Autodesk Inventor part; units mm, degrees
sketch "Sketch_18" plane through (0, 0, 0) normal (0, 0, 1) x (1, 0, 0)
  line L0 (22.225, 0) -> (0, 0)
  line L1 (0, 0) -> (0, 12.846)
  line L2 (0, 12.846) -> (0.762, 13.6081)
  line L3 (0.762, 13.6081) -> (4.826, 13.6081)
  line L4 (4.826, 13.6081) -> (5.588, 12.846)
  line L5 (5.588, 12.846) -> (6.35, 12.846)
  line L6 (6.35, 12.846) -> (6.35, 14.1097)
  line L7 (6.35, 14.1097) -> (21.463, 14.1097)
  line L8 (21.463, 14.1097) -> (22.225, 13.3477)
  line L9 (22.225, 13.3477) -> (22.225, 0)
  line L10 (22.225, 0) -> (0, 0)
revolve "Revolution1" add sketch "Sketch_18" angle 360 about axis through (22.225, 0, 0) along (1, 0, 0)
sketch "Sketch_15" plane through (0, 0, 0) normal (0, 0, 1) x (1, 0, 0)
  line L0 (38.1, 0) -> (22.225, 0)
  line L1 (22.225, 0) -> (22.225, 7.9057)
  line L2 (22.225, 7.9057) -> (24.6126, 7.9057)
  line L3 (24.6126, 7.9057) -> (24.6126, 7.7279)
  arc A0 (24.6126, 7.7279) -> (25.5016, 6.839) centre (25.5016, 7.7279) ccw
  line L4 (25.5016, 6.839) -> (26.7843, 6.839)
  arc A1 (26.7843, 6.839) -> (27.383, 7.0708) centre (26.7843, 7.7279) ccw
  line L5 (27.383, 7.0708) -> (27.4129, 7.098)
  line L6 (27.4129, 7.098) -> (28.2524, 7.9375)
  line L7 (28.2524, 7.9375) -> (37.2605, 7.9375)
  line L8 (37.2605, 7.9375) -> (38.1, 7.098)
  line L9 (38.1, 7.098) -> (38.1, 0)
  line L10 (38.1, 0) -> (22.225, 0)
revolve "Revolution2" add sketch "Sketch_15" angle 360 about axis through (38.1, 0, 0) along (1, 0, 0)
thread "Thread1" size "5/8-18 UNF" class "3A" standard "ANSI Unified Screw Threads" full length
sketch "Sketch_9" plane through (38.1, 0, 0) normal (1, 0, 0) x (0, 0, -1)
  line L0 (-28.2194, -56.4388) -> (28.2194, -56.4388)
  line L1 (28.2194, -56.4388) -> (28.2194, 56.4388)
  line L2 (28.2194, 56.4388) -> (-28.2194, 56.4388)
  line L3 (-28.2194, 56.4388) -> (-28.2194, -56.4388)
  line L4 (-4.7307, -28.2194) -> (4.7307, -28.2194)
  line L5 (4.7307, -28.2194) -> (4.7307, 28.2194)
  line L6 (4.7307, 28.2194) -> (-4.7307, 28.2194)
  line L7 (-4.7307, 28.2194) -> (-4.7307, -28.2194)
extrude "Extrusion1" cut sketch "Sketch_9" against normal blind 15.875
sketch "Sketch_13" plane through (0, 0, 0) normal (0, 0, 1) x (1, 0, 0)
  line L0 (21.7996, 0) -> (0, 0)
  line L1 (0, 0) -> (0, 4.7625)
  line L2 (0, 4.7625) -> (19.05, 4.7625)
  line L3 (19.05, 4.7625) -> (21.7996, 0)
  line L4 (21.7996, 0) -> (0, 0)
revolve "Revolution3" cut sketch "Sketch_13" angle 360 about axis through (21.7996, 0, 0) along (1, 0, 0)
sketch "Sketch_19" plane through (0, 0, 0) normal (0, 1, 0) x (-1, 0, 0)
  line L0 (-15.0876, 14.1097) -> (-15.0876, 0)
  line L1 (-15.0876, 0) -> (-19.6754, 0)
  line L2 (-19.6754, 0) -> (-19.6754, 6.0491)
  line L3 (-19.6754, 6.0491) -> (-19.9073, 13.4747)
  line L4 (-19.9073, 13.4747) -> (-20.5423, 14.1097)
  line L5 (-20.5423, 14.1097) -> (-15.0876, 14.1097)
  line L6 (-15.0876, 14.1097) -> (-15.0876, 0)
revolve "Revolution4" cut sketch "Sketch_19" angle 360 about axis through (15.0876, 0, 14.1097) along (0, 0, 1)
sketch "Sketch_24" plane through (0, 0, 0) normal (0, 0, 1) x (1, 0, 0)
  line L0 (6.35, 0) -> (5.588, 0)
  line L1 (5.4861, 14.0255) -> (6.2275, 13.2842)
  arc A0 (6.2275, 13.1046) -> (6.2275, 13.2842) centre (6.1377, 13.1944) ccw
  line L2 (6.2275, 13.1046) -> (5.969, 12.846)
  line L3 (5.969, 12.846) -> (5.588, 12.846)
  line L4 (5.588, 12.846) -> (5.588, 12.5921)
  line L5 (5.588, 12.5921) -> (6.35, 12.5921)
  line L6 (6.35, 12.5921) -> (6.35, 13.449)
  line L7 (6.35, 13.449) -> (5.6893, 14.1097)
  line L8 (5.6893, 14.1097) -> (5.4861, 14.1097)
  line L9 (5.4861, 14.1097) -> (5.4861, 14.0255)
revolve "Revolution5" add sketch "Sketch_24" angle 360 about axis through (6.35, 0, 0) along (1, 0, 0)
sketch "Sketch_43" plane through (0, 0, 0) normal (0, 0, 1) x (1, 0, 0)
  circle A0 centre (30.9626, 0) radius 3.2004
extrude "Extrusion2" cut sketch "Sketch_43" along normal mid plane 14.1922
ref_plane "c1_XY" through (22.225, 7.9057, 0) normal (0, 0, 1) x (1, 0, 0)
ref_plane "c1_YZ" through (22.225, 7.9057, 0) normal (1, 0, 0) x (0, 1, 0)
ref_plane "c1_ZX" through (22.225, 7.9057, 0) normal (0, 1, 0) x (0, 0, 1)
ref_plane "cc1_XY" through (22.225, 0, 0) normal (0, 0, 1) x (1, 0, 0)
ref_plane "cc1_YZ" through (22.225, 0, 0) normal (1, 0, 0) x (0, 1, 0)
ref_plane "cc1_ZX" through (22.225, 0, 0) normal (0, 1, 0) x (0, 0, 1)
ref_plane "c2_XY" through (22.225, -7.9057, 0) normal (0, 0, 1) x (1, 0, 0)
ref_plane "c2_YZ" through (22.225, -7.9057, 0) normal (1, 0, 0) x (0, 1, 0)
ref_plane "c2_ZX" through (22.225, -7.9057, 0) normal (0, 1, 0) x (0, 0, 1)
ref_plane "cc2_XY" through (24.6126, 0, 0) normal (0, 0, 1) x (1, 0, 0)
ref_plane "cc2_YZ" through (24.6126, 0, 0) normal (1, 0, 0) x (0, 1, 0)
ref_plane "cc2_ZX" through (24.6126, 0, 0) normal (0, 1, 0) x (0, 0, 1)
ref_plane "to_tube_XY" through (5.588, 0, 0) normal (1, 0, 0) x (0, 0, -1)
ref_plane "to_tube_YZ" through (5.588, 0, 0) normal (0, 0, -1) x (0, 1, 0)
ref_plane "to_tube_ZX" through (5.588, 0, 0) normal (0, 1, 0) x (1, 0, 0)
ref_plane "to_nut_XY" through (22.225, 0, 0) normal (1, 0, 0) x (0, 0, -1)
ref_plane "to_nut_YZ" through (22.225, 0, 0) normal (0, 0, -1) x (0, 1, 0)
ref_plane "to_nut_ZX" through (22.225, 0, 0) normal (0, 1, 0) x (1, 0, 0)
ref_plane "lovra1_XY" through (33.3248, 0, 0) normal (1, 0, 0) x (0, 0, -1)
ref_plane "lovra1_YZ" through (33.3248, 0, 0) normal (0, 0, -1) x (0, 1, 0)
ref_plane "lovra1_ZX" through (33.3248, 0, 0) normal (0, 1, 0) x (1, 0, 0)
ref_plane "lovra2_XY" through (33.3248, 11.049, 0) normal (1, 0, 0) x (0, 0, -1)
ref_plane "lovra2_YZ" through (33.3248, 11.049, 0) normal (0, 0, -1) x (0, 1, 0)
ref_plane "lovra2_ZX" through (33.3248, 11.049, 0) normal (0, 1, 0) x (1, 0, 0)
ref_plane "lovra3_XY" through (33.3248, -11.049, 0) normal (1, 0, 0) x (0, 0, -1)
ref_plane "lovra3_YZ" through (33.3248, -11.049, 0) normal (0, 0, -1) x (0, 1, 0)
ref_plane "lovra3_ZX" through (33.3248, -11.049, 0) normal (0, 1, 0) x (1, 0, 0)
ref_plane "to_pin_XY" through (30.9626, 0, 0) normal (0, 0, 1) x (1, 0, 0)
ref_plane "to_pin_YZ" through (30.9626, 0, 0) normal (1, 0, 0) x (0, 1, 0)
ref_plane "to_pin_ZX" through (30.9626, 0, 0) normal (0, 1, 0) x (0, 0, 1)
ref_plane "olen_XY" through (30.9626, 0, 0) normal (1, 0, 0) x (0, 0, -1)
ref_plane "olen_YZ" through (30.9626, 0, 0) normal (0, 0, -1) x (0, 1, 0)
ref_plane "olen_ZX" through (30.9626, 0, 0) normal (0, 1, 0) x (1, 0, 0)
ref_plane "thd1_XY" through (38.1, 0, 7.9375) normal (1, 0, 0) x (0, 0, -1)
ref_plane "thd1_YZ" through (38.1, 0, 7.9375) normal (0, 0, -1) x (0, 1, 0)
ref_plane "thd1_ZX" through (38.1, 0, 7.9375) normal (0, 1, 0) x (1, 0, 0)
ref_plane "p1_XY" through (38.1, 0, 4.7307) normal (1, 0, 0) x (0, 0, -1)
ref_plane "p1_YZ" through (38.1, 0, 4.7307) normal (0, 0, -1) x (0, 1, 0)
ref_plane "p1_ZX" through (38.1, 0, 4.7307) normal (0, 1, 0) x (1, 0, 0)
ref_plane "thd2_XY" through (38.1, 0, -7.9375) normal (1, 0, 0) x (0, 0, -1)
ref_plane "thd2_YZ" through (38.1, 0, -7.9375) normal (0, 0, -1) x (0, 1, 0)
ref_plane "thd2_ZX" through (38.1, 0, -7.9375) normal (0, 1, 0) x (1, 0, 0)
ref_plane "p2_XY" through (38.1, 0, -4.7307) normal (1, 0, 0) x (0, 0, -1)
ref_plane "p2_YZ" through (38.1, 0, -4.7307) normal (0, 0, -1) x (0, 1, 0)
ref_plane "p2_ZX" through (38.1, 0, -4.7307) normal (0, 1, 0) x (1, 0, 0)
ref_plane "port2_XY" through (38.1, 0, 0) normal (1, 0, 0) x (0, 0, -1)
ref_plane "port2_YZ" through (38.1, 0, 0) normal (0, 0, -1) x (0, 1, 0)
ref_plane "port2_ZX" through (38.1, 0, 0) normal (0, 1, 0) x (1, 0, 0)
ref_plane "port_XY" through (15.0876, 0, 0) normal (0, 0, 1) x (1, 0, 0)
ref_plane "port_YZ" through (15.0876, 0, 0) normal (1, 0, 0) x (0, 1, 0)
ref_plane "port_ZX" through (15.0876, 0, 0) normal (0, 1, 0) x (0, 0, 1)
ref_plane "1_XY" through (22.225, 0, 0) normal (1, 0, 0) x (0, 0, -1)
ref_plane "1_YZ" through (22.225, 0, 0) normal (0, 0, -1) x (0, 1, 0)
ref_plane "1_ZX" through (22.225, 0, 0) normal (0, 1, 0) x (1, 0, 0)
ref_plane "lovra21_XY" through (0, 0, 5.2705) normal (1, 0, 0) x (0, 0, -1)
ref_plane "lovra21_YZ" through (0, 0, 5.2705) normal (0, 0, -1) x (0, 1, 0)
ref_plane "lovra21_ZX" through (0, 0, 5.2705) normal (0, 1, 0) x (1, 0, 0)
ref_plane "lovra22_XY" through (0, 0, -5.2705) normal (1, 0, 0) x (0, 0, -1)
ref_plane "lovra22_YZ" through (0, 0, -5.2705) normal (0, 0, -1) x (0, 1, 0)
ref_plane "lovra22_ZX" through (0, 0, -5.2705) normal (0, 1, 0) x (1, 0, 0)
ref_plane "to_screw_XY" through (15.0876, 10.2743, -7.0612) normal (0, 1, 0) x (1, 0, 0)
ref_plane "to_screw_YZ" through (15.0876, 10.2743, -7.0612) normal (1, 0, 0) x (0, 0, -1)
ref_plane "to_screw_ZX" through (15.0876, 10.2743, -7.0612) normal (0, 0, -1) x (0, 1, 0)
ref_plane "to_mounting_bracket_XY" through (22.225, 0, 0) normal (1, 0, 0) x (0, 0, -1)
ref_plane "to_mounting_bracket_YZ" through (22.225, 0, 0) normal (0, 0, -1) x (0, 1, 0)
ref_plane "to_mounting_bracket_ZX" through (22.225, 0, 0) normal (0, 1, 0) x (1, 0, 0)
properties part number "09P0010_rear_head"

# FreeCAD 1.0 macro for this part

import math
import FreeCAD as App
import Part
import Sketcher

V = App.Vector
Q = App.Units.Quantity


def add_polygon(sketch, points):
    """Adds a closed chain of lines whose ends are joined by coincident constraints."""
    first, n = sketch.GeometryCount, len(points)
    for a, b in zip(points, points[1:] + points[:1]):
        sketch.addGeometry(Part.LineSegment(App.Vector(*a, 0), App.Vector(*b, 0)), False)
    for i in range(n):
        sketch.addConstraint(Sketcher.Constraint("Coincident", first + i, 2, first + (i + 1) % n, 1))

doc = App.newDocument("Part")
body = doc.addObject("PartDesign::Body", "Body")

sketch1 = body.newObject("Sketcher::SketchObject", "Sketch")
sketch1.AttachmentSupport = (doc.getObject("XY_Plane"), [""])
sketch1.MapMode = "FlatFace"
add_polygon(sketch1, [(0, 0), (22.225, 0), (22.225, 13.3477), (21.463, 14.1097), (6.35, 14.1097), (6.35, 12.846), (5.588, 12.846), (4.826, 13.6081), (0.762, 13.6081), (0, 12.846)])
sketch1.addConstraint([
    Sketcher.Constraint("Horizontal", 0),
    Sketcher.Constraint("Vertical", 1),
    Sketcher.Constraint("Horizontal", 3),
    Sketcher.Constraint("Vertical", 4),
    Sketcher.Constraint("Horizontal", 5),
    Sketcher.Constraint("Horizontal", 7),
    Sketcher.Constraint("Vertical", 9),
    Sketcher.Constraint("Coincident", 9, 2, -1, 1),
    Sketcher.Constraint("Parallel", 2, 6),
    Sketcher.Constraint("Perpendicular", 6, 8),
    Sketcher.Constraint("Horizontal", 5, 2, 8, 2),
    Sketcher.Constraint("Equal", 2, 6),
    Sketcher.Constraint("Equal", 6, 8),
    Sketcher.Constraint("DistanceX", 5, 2, 5, 1, Q("0.03 in")),
    Sketcher.Constraint("DistanceX", 7, 2, 7, 1, Q("0.16 in")),
    Sketcher.Constraint("DistanceX", 0, 1, 0, 2, Q("0.875 in")),
    Sketcher.Constraint("DistanceX", 3, 2, 3, 1, Q("0.595 in")),
    Sketcher.Constraint("DistanceY", 1, 1, 1, 2, Q("0.5255 in")),
    Sketcher.Constraint("DistanceY", 4, 2, 4, 1, 1.2637),
])
revolution = body.newObject("PartDesign::Revolution", "Revolution")
revolution.Profile = sketch1
revolution.ReferenceAxis = (sketch1, ["H_Axis"])
revolution.Angle = 360

sketch2 = body.newObject("Sketcher::SketchObject", "Sketch001")
sketch2.AttachmentSupport = (doc.getObject("XY_Plane"), [""])
sketch2.MapMode = "FlatFace"
sketch2.addGeometry([
    Part.LineSegment(V(22.225, 0, 0), V(38.1, 0, 0)),
    Part.LineSegment(V(38.1, 0, 0), V(38.1, 7.098, 0)),
    Part.LineSegment(V(38.1, 7.098, 0), V(37.2605, 7.9375, 0)),
    Part.LineSegment(V(37.2605, 7.9375, 0), V(28.2524, 7.9375, 0)),
    Part.LineSegment(V(28.2524, 7.9375, 0), V(27.4129, 7.098, 0)),
    Part.LineSegment(V(27.4129, 7.098, 0), V(27.383, 7.0708, 0)),
    Part.ArcOfCircle(Part.Circle(V(26.7843, 7.7279, 0), V(0, 0, 1), 0.8889), math.radians(-90), math.radians(-47.662577)),
    Part.LineSegment(V(26.7843, 6.839, 0), V(25.5016, 6.839, 0)),
    Part.ArcOfCircle(Part.Circle(V(25.5016, 7.7279, 0), V(0, 0, 1), 0.889), math.radians(180), math.radians(270)),
    Part.LineSegment(V(24.6126, 7.7279, 0), V(24.6126, 7.9057, 0)),
    Part.LineSegment(V(24.6126, 7.9057, 0), V(22.225, 7.9057, 0)),
    Part.LineSegment(V(22.225, 7.9057, 0), V(22.225, 0, 0)),
], False)
sketch2.addConstraint([
    Sketcher.Constraint("Coincident", 0, 2, 1, 1),
    Sketcher.Constraint("Coincident", 1, 2, 2, 1),
    Sketcher.Constraint("Coincident", 2, 2, 3, 1),
    Sketcher.Constraint("Coincident", 3, 2, 4, 1),
    Sketcher.Constraint("Coincident", 4, 2, 5, 1),
    Sketcher.Constraint("Coincident", 5, 2, 6, 2),
    Sketcher.Constraint("Tangent", 6, 1, 7, 1),
    Sketcher.Constraint("Tangent", 7, 2, 8, 2),
    Sketcher.Constraint("Tangent", 8, 1, 9, 1),
    Sketcher.Constraint("Coincident", 9, 2, 10, 1),
    Sketcher.Constraint("Coincident", 10, 2, 11, 1),
    Sketcher.Constraint("Coincident", 11, 2, 0, 1),
    Sketcher.Constraint("Horizontal", 0),
    Sketcher.Constraint("Vertical", 1),
    Sketcher.Constraint("Horizontal", 3),
    Sketcher.Constraint("Horizontal", 7),
    Sketcher.Constraint("Vertical", 9),
    Sketcher.Constraint("Horizontal", 10),
    Sketcher.Constraint("Vertical", 11),
    Sketcher.Constraint("Equal", 6, 8),
    Sketcher.Constraint("PointOnObject", 0, 2, -1),
    Sketcher.Constraint("Perpendicular", 2, 4),
    Sketcher.Constraint("Horizontal", 1, 2, 4, 2),
    Sketcher.Constraint("Equal", 2, 4),
    Sketcher.Constraint("Radius", 6, Q("0.035 in")),
    Sketcher.Constraint("DistanceX", -1, 1, 0, 2, Q("1.5 in")),
    Sketcher.Constraint("DistanceX", 0, 1, 0, 2, Q("0.625 in")),
    Sketcher.Constraint("DistanceX", 10, 2, 10, 1, Q("0.094 in")),
    Sketcher.Constraint("DistanceY", 9, 1, 9, 2, Q("0.007 in")),
    Sketcher.Constraint("DistanceX", 7, 2, 7, 1, Q("0.0505 in")),
    Sketcher.Constraint("DistanceY", -1, 1, 2, 2, Q("0.3125 in")),
    Sketcher.Constraint("Distance", 5, Q("0.0016 in")),
    Sketcher.Constraint("DistanceX", 3, 2, 3, 1, 9.008),
    Sketcher.Constraint("DistanceY", 1, 1, 1, 2, 7.098),
    Sketcher.Constraint("DistanceY", 11, 2, 11, 1, 7.9057),
])
revolution2 = body.newObject("PartDesign::Revolution", "Revolution001")
revolution2.Profile = sketch2
revolution2.ReferenceAxis = (sketch2, ["H_Axis"])
revolution2.Angle = 360

sketch3 = body.newObject("Sketcher::SketchObject", "Sketch002")
sketch3.AttachmentSupport = (doc.getObject("YZ_Plane"), [""])
sketch3.MapMode = "FlatFace"
sketch3.AttachmentOffset = App.Placement(V(0, 0, 1.5 * 25.4), App.Rotation())
add_polygon(sketch3, [(56.4388, 28.2194), (-56.4388, 28.2194), (-56.4388, -28.2194), (56.4388, -28.2194)])
add_polygon(sketch3, [(-28.2194, -4.7307), (-28.2194, 4.7307), (28.2194, 4.7307), (28.2194, -4.7307)])
sketch3.addConstraint([
    Sketcher.Constraint("Horizontal", 0),
    Sketcher.Constraint("Vertical", 1),
    Sketcher.Constraint("Horizontal", 2),
    Sketcher.Constraint("Vertical", 3),
    Sketcher.Constraint("Vertical", 4),
    Sketcher.Constraint("Horizontal", 5),
    Sketcher.Constraint("Vertical", 6),
    Sketcher.Constraint("Horizontal", 7),
    Sketcher.Constraint("Symmetric", 0, 2, 2, 2, -1, 1),
    Sketcher.Constraint("Symmetric", 4, 2, 6, 2, -1, 1),
    Sketcher.Constraint("Equal", 7, 1),
    Sketcher.Constraint("DistanceX", 0, 2, 0, 1, Q("4.444 in")),
    Sketcher.Constraint("DistanceX", 5, 1, 5, 2, Q("2.222 in")),
    Sketcher.Constraint("DistanceY", 4, 1, 4, 2, Q("0.3725 in")),
])
pocket1 = body.newObject("PartDesign::Pocket", "Pocket")
pocket1.Profile = sketch3
pocket1.Length = Q("0.625 in")

sketch4 = body.newObject("Sketcher::SketchObject", "Sketch003")
sketch4.AttachmentSupport = (doc.getObject("XY_Plane"), [""])
sketch4.MapMode = "FlatFace"
add_polygon(sketch4, [(0, 0), (21.7996, 0), (19.05, 4.7625), (0, 4.7625)])
sketch4.addConstraint([
    Sketcher.Constraint("Horizontal", 0),
    Sketcher.Constraint("Horizontal", 2),
    Sketcher.Constraint("Vertical", 3),
    Sketcher.Constraint("Coincident", 3, 2, -1, 1),
    Sketcher.Constraint("Angle", 1, Q("119.9997 deg")),
    Sketcher.Constraint("DistanceX", 2, 2, 2, 1, Q("0.75 in")),
    Sketcher.Constraint("DistanceY", 3, 2, 3, 1, Q("0.1875 in")),
])
groove = body.newObject("PartDesign::Groove", "Groove")
groove.Profile = sketch4
groove.ReferenceAxis = (sketch4, ["H_Axis"])
groove.Angle = 360

sketch5 = body.newObject("Sketcher::SketchObject", "Sketch004")
sketch5.AttachmentSupport = (doc.getObject("XZ_Plane"), [""])
sketch5.MapMode = "FlatFace"
add_polygon(sketch5, [(15.0876, 0), (15.0876, 14.1097), (20.5423, 14.1097), (19.9073, 13.4747), (19.6754, 6.0491), (19.6754, 0)])
sketch5.addGeometry(Part.LineSegment(V(15.0876, 0, 0), V(15.0876, 14.1097, 0)), True)
sketch5.addConstraint([
    Sketcher.Constraint("Vertical", 0),
    Sketcher.Constraint("Horizontal", 1),
    Sketcher.Constraint("Vertical", 4),
    Sketcher.Constraint("Horizontal", 5),
    Sketcher.Constraint("Vertical", 6),
    Sketcher.Constraint("Coincident", 6, 1, 5, 2),
    Sketcher.Constraint("PointOnObject", 4, 2, -1),
    Sketcher.Constraint("Horizontal", 1, 2, 6, 2),
    Sketcher.Constraint("Angle", 2, Q("-135 deg")),
    Sketcher.Constraint("DistanceY", 0, 1, 0, 2, Q("0.5555 in")),
    Sketcher.Constraint("DistanceX", -1, 1, 0, 2, Q("0.594 in")),
    Sketcher.Constraint("DistanceX", 2, 2, 1, 2, Q("0.025 in")),
    Sketcher.Constraint("Distance", 3, Q("0.2925 in")),
    Sketcher.Constraint("DistanceX", 1, 1, 1, 2, 5.4547),
    Sketcher.Constraint("DistanceX", 5, 2, 5, 1, 4.5878),
])
groove2 = body.newObject("PartDesign::Groove", "Groove001")
groove2.Profile = sketch5
groove2.ReferenceAxis = (sketch5, ["Axis0"])
groove2.Angle = 360

sketch6 = body.newObject("Sketcher::SketchObject", "Sketch005")
sketch6.AttachmentSupport = (doc.getObject("XY_Plane"), [""])
sketch6.MapMode = "FlatFace"
sketch6.addGeometry([
    Part.LineSegment(V(5.4861, 14.1097, 0), V(5.4861, 14.0255, 0)),
    Part.LineSegment(V(5.4861, 14.0255, 0), V(6.2275, 13.2842, 0)),
    Part.ArcOfCircle(Part.Circle(V(6.1377, 13.1944, 0), V(0, 0, 1), 0.126996), math.radians(-45), math.radians(45)),
    Part.LineSegment(V(6.2275, 13.1046, 0), V(5.969, 12.846, 0)),
    Part.LineSegment(V(5.969, 12.846, 0), V(5.588, 12.846, 0)),
    Part.LineSegment(V(5.588, 12.846, 0), V(5.588, 12.5921, 0)),
    Part.LineSegment(V(5.588, 12.5921, 0), V(6.35, 12.5921, 0)),
    Part.LineSegment(V(6.35, 12.5921, 0), V(6.35, 13.449, 0)),
    Part.LineSegment(V(6.35, 13.449, 0), V(5.6893, 14.1097, 0)),
    Part.LineSegment(V(5.6893, 14.1097, 0), V(5.4861, 14.1097, 0)),
], False)
sketch6.addConstraint([
    Sketcher.Constraint("Coincident", 0, 2, 1, 1),
    Sketcher.Constraint("Tangent", 1, 2, 2, 2),
    Sketcher.Constraint("Tangent", 2, 1, 3, 1),
    Sketcher.Constraint("Coincident", 3, 2, 4, 1),
    Sketcher.Constraint("Coincident", 4, 2, 5, 1),
    Sketcher.Constraint("Coincident", 5, 2, 6, 1),
    Sketcher.Constraint("Coincident", 6, 2, 7, 1),
    Sketcher.Constraint("Coincident", 7, 2, 8, 1),
    Sketcher.Constraint("Coincident", 8, 2, 9, 1),
    Sketcher.Constraint("Coincident", 9, 2, 0, 1),
    Sketcher.Constraint("Vertical", 0),
    Sketcher.Constraint("Horizontal", 4),
    Sketcher.Constraint("Vertical", 5),
    Sketcher.Constraint("Horizontal", 6),
    Sketcher.Constraint("Vertical", 7),
    Sketcher.Constraint("Horizontal", 9),
    Sketcher.Constraint("Perpendicular", 1, 3),
    Sketcher.Constraint("Perpendicular", 3, 8),
    Sketcher.Constraint("Vertical", 1, 2, 2, 1),
    Sketcher.Constraint("Radius", 2, Q("0.005 in")),
    Sketcher.Constraint("DistanceX", 6, 1, 6, 2, Q("0.03 in")),
    Sketcher.Constraint("DistanceY", 5, 2, 5, 1, Q("0.01 in")),
    Sketcher.Constraint("DistanceX", 4, 2, 4, 1, Q("0.015 in")),
    Sketcher.Constraint("DistanceX", 9, 2, 9, 1, Q("0.008 in")),
    Sketcher.Constraint("DistanceX", -1, 1, 4, 2, Q("0.22 in")),
    Sketcher.Constraint("DistanceX", -1, 1, 0, 2, Q("0.216 in")),
    Sketcher.Constraint("DistanceY", -1, 1, 1, 2, Q("0.523 in")),
    Sketcher.Constraint("Distance", 3, Q("0.0144 in")),
    Sketcher.Constraint("DistanceY", 0, 2, 0, 1, 0.0842),
])
revolution3 = body.newObject("PartDesign::Revolution", "Revolution002")
revolution3.Profile = sketch6
revolution3.ReferenceAxis = (sketch6, ["H_Axis"])
revolution3.Angle = 360

sketch7 = body.newObject("Sketcher::SketchObject", "Sketch006")
sketch7.AttachmentSupport = (doc.getObject("XY_Plane"), [""])
sketch7.MapMode = "FlatFace"
sketch7.addGeometry(Part.Circle(V(30.9626, 0, 0), V(0, 0, 1), 3.2004), False)
sketch7.addConstraint([
    Sketcher.Constraint("PointOnObject", 0, 3, -1),
    Sketcher.Constraint("Diameter", 0, Q("0.252 in")),
    Sketcher.Constraint("DistanceX", -1, 1, 0, 3, Q("1.219 in")),
])
pocket2 = body.newObject("PartDesign::Pocket", "Pocket001")
pocket2.Profile = sketch7
pocket2.Length = 14.1922
pocket2.Midplane = True

doc.recompute()
